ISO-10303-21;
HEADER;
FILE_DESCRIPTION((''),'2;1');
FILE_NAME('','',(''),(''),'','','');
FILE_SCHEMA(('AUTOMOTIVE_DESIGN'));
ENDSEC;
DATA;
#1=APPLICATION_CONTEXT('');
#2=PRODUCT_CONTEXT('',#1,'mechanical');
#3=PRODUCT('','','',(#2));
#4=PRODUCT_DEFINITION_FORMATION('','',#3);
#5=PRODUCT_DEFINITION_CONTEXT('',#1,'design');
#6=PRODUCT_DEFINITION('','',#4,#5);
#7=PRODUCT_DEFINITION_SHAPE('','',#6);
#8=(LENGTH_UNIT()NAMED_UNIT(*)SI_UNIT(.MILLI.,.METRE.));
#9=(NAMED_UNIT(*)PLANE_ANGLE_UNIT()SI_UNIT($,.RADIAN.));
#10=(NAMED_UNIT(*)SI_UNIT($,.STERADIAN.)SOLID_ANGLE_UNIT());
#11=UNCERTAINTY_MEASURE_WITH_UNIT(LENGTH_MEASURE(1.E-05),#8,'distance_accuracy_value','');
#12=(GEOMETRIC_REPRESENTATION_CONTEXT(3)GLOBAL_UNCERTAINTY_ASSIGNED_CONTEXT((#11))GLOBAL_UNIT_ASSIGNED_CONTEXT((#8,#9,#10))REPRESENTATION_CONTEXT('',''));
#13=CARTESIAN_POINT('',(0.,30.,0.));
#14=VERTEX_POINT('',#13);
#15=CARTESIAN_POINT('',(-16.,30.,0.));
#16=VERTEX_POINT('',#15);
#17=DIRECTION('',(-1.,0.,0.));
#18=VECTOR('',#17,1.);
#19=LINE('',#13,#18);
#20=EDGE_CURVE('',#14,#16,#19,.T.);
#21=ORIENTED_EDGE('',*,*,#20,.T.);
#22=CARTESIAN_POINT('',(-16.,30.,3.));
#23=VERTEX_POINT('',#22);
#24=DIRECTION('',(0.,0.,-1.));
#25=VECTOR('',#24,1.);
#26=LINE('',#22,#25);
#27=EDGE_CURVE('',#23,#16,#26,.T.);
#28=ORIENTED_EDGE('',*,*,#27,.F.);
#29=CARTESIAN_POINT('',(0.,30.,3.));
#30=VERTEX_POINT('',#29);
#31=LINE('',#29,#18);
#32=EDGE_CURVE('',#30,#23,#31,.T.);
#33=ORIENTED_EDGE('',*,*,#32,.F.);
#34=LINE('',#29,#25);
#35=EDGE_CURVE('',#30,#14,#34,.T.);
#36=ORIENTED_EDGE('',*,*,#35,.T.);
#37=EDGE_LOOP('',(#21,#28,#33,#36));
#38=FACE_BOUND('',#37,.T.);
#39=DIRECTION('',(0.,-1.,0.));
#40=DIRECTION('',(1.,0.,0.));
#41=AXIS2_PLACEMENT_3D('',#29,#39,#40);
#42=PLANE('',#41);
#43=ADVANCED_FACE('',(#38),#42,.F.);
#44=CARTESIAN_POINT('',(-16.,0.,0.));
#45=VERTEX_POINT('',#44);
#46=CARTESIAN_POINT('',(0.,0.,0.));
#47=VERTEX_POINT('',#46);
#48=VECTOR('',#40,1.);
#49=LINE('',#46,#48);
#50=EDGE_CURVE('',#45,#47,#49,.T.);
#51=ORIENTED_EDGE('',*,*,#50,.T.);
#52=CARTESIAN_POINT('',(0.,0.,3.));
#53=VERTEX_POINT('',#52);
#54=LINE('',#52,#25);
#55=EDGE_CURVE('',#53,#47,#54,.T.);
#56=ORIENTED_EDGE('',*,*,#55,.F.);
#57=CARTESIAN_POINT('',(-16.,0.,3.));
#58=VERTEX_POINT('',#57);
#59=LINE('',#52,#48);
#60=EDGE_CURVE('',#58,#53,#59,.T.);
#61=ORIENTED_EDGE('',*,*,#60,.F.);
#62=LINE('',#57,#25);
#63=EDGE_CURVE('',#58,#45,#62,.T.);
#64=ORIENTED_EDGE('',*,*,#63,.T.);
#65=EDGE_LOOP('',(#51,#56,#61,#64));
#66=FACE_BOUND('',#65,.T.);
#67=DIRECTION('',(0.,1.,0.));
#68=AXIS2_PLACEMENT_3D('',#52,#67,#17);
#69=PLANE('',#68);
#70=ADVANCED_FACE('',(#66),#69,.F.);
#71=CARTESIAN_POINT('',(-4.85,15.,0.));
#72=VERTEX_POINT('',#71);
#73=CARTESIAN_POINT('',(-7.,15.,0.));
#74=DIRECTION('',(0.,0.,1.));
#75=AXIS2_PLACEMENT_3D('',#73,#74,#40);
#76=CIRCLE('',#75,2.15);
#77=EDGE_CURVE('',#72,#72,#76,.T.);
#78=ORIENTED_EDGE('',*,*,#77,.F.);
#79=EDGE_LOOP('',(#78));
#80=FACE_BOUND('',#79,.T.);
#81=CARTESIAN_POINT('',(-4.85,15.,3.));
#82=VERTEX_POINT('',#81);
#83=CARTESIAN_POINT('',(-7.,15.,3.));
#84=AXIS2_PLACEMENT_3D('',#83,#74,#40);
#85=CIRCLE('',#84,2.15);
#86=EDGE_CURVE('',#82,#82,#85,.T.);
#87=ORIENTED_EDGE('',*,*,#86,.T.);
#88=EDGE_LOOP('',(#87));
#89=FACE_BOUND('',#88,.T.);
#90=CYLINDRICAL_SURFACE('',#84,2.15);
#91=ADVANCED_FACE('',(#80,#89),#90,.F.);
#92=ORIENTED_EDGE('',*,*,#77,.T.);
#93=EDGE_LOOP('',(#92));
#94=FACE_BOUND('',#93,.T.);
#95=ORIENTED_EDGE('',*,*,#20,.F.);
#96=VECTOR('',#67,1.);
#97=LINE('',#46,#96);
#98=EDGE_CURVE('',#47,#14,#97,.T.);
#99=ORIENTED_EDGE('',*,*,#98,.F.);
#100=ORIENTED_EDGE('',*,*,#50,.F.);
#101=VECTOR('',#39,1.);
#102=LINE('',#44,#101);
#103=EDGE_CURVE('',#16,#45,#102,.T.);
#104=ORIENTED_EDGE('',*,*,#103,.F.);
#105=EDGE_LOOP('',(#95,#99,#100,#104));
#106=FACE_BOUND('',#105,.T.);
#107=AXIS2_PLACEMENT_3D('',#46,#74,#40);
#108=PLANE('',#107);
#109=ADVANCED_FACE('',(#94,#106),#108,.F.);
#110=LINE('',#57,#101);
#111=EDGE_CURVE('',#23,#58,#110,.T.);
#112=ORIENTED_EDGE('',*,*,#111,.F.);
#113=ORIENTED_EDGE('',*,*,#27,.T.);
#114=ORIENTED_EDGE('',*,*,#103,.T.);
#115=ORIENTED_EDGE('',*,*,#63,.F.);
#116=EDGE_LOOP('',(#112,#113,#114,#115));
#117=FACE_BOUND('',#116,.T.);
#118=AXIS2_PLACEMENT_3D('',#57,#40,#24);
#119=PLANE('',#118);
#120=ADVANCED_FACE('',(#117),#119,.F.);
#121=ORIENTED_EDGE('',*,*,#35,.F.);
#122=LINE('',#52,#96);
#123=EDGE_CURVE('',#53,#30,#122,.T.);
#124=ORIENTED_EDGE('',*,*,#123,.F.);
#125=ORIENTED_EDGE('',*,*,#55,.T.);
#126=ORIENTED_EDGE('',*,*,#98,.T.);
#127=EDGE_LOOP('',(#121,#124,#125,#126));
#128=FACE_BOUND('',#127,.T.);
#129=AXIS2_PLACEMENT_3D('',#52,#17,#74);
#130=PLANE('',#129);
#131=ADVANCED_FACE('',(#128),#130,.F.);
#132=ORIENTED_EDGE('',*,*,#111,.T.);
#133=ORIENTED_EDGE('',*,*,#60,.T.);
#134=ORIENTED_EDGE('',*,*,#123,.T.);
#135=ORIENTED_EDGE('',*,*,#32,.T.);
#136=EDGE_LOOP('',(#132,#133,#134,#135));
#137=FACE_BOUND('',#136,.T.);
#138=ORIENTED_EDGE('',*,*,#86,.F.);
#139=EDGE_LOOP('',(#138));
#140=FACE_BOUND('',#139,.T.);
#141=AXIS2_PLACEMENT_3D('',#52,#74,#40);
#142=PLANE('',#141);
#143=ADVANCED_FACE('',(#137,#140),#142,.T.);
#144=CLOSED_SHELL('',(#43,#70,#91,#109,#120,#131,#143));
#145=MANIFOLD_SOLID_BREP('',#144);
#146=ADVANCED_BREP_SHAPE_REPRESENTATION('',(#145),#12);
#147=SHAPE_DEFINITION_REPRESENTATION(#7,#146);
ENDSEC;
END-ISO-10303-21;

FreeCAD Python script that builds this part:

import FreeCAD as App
import Part
import Sketcher

V = App.Vector


def add_polygon(sketch, points):
    """Adds a closed chain of lines whose ends are joined by coincident constraints."""
    first, n = sketch.GeometryCount, len(points)
    for a, b in zip(points, points[1:] + points[:1]):
        sketch.addGeometry(Part.LineSegment(App.Vector(*a, 0), App.Vector(*b, 0)), False)
    for i in range(n):
        sketch.addConstraint(Sketcher.Constraint("Coincident", first + i, 2, first + (i + 1) % n, 1))

doc = App.newDocument("Part")
body = doc.addObject("PartDesign::Body", "Body")

# Sketch on XY plane
sketch1 = body.newObject("Sketcher::SketchObject", "Sketch")
sketch1.AttachmentSupport = (doc.getObject("XY_Plane"), [""])
sketch1.MapMode = "FlatFace"
add_polygon(sketch1, [(-16, 30), (-16, 0), (0, 0), (0, 30)])  # lines 0-3
sketch1.addConstraint([
    Sketcher.Constraint("Vertical", 0),
    Sketcher.Constraint("Horizontal", 1),
    Sketcher.Constraint("Vertical", 2),
    Sketcher.Constraint("Horizontal", 3),
    Sketcher.Constraint("Coincident", 1, 2, -1, 1),
    Sketcher.Constraint("DistanceX", 1, 1, 1, 2, 16.0),
    Sketcher.Constraint("DistanceY", 0, 2, 0, 1, 30.0),
])
pad1 = body.newObject("PartDesign::Pad", "Pad")
pad1.Profile = sketch1
pad1.Length = 3

# Sketch on XY plane
sketch2 = body.newObject("Sketcher::SketchObject", "Sketch001")
sketch2.AttachmentSupport = (doc.getObject("XY_Plane"), [""])
sketch2.MapMode = "FlatFace"
sketch2.AttachmentOffset = App.Placement(V(0, 0, 3), App.Rotation())
sketch2.addGeometry(Part.Circle(V(-7, 15, 0), V(0, 0, 1), 2.1), False)
sketch2.addConstraint([
    Sketcher.Constraint("Diameter", 0, 4.3),
    Sketcher.Constraint("DistanceX", 0, 3, -1, 1, 7.0),
    Sketcher.Constraint("DistanceY", -1, 1, 0, 3, 15.0),
])
doc.recompute()
hole = body.newObject("PartDesign::Hole", "Hole")
hole.Profile = sketch2
hole.ThreadType = "None"
hole.Diameter = 4.3
hole.DepthType = "Dimension"
hole.Depth = 100
hole.DrillPoint = "Angled"
hole.DrillPointAngle = 118

doc.recompute()
